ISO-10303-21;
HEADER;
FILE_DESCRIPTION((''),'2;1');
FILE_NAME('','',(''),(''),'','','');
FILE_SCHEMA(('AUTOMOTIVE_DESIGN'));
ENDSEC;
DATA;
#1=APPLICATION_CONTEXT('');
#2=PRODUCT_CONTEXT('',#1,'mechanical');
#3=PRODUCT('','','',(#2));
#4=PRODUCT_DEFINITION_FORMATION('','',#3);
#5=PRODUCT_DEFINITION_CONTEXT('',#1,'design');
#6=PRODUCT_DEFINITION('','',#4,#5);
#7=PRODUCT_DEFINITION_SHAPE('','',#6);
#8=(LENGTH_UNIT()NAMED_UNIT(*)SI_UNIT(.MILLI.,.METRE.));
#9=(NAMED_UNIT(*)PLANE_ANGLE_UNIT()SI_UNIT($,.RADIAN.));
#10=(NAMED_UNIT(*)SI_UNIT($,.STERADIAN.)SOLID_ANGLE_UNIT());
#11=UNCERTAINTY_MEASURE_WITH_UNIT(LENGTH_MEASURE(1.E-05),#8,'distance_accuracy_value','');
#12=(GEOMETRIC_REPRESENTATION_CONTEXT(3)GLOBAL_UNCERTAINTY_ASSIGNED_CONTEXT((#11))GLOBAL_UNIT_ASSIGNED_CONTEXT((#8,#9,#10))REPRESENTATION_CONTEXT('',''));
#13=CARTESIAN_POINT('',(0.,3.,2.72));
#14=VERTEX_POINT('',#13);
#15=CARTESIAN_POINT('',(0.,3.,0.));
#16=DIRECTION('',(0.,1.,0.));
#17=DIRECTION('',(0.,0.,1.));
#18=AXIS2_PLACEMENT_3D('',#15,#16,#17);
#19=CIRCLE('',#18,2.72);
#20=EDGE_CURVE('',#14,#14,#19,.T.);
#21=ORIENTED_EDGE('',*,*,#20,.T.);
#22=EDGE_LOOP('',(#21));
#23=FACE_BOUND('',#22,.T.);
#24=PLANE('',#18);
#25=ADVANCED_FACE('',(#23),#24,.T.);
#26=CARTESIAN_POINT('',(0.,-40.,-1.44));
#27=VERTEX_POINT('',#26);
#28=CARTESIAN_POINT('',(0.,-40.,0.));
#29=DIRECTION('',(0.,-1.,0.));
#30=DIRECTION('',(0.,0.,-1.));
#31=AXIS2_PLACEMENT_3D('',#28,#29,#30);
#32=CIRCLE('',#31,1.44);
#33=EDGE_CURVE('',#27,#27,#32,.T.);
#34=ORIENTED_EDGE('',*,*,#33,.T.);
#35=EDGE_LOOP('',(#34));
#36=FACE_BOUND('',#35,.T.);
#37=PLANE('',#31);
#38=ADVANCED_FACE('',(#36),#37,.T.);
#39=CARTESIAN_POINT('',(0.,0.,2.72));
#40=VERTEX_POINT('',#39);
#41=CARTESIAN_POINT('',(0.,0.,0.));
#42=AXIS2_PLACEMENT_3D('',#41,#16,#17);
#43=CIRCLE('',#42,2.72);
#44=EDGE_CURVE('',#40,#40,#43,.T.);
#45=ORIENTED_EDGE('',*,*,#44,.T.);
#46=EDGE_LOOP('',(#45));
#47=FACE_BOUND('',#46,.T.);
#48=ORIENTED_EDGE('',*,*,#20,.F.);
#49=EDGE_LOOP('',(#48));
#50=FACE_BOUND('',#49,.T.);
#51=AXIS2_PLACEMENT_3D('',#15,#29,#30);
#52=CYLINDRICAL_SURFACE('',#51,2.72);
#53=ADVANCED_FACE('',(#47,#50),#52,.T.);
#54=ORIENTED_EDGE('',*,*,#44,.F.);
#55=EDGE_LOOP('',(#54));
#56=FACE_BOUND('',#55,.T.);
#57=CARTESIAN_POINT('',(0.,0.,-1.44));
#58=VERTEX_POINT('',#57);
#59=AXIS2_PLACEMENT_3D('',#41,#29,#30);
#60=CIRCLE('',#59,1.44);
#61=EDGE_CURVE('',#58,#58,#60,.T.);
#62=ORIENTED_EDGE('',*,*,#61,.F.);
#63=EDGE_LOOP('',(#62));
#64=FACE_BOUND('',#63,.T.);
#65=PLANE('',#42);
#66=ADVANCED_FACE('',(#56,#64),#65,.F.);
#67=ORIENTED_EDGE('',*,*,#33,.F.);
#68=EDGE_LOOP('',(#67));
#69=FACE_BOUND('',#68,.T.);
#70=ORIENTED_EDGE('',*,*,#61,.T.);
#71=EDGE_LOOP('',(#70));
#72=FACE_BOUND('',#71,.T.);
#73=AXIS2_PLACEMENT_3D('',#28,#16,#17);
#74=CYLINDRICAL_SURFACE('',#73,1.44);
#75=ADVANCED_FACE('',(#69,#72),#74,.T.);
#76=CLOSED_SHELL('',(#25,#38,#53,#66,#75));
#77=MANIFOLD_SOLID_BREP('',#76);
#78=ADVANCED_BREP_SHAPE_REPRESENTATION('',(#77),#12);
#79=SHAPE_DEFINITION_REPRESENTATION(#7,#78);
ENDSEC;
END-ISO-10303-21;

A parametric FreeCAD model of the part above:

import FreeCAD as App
import Part
import Sketcher
from FreeCAD import Vector
Q = App.Units.Quantity

doc = App.newDocument("Part")
body = doc.addObject("PartDesign::Body", "Body")

# Sketch on XZ plane
sketch1 = doc.addObject("Sketcher::SketchObject", "Sketch")
body.addObject(sketch1)
sketch1.AttachmentSupport = (doc.XZ_Plane, [""])
sketch1.MapMode = "FlatFace"
sketch1.addGeometry(Part.Circle(Vector(0, 0, 0), Vector(0, 0, 1), 2.72), False)
sketch1.addConstraint(Sketcher.Constraint("Coincident", 0, 3, -1, 1))
sketch1.addConstraint(Sketcher.Constraint("Diameter", 0, Q("5.44 mm")))
pad1 = doc.addObject("PartDesign::Pad", "Pad")
body.addObject(pad1)
pad1.Profile = sketch1
pad1.Length = 3
pad1.Reversed = True

# Sketch on XZ plane
sketch2 = doc.addObject("Sketcher::SketchObject", "Sketch001")
body.addObject(sketch2)
sketch2.AttachmentSupport = (doc.XZ_Plane, [""])
sketch2.MapMode = "FlatFace"
sketch2.addGeometry(Part.Circle(Vector(0, 0, 0), Vector(0, 0, 1), 1.44), False)
sketch2.addConstraint(Sketcher.Constraint("Coincident", 0, 3, -1, 1))
sketch2.addConstraint(Sketcher.Constraint("Diameter", 0, Q("2.88 mm")))
pad2 = doc.addObject("PartDesign::Pad", "Pad001")
body.addObject(pad2)
pad2.Profile = sketch2
pad2.Length = 40

doc.recompute()
